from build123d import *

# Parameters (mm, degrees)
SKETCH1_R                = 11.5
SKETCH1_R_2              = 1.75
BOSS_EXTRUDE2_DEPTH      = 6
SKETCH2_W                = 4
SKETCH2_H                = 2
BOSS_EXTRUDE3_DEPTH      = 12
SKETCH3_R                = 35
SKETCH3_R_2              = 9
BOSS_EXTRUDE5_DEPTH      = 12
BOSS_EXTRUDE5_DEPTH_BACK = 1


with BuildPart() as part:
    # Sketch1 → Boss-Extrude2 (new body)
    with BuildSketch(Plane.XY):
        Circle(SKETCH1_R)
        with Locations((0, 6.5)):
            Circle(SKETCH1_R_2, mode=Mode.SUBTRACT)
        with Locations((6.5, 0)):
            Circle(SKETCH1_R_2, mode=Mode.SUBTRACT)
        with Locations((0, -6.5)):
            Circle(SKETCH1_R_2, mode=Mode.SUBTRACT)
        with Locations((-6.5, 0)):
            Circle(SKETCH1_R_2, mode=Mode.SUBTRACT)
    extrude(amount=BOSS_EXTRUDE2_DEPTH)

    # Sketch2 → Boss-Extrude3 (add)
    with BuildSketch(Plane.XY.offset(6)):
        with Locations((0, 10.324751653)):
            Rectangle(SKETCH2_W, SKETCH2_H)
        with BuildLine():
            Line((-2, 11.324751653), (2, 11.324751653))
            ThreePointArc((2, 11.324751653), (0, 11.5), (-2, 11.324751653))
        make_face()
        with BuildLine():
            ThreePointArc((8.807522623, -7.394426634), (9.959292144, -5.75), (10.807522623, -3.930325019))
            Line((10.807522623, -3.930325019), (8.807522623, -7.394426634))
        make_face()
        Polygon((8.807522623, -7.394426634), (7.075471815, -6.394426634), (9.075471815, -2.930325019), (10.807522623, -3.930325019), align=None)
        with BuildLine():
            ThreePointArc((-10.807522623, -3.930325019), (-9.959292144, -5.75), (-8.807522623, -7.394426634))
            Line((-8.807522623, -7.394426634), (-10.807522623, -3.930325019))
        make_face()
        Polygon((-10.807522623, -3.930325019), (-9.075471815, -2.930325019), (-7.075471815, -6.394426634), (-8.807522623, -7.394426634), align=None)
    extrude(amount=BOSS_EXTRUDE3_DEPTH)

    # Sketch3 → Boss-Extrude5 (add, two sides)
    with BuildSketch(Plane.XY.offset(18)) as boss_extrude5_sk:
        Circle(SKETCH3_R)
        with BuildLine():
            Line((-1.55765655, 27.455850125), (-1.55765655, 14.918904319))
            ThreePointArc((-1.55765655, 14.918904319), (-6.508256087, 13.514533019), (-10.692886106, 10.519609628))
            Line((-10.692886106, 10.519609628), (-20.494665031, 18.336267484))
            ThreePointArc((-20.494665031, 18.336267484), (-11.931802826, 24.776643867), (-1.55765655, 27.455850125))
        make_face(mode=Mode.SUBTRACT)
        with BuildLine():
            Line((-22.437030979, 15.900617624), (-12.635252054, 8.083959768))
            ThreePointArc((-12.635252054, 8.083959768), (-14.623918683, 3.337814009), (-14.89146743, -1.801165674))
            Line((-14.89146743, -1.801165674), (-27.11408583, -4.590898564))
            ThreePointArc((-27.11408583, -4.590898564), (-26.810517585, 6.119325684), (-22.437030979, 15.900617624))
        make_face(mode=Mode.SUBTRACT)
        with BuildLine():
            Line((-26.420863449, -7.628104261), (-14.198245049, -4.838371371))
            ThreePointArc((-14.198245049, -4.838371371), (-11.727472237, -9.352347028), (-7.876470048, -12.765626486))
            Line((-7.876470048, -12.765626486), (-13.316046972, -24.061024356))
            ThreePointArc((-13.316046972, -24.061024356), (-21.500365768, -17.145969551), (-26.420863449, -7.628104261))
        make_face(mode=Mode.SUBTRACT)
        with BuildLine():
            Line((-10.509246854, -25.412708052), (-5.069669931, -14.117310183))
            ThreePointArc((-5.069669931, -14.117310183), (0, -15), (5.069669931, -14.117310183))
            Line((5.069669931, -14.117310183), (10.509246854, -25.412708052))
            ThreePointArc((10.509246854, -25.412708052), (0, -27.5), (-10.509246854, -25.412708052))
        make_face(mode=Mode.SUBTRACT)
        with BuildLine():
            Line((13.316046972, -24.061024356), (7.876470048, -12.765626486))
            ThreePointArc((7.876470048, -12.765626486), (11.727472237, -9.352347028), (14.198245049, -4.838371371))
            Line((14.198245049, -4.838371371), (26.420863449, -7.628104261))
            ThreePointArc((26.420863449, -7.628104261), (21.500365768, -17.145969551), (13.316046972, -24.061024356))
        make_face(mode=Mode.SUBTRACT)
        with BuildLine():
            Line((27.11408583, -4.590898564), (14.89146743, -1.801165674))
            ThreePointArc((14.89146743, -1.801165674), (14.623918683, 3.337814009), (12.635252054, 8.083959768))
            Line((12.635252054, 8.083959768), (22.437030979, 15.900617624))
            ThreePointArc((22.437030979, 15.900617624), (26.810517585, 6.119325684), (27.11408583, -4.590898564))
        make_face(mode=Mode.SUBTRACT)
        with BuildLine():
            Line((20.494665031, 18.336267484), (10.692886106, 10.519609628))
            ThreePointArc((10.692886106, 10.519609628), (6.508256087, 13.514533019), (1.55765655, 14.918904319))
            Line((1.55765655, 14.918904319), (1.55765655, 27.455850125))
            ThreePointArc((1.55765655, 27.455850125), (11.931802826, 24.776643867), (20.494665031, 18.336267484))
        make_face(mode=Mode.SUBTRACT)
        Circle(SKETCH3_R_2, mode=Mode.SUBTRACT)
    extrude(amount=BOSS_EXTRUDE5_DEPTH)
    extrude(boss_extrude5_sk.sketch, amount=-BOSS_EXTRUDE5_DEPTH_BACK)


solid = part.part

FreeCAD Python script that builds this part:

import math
import FreeCAD as App
import Part
import Sketcher

V = App.Vector
Q = App.Units.Quantity

doc = App.newDocument("Part")
body = doc.addObject("PartDesign::Body", "Body")

sketch1 = doc.addObject("Sketcher::SketchObject", "Sketch")
body.addObject(sketch1)
sketch1.AttachmentSupport = (doc.XY_Plane, [""])
sketch1.MapMode = "FlatFace"
sketch1.addGeometry([
    Part.Circle(V(0, 0, 0), V(0, 0, 1), 11.5),
    Part.Circle(V(0, -6.5, 0), V(0, 0, 1), 1.8),
    Part.Circle(V(-6.5, 0, 0), V(0, 0, 1), 1.8),
    Part.Circle(V(6.5, 0, 0), V(0, 0, 1), 1.8),
    Part.Circle(V(0, 6.5, 0), V(0, 0, 1), 1.8),
], False)
sketch1.addConstraint([
    Sketcher.Constraint("Coincident", 0, 3, -1, 1),
    Sketcher.Constraint("Equal", 1, 2),
    Sketcher.Constraint("Equal", 2, 3),
    Sketcher.Constraint("Equal", 3, 4),
    Sketcher.Constraint("Symmetric", 2, 3, 3, 3, -1, 1),
    Sketcher.Constraint("Symmetric", 1, 3, 4, 3, -1, 1),
    Sketcher.Constraint("PointOnObject", 1, 3, -2),
    Sketcher.Constraint("PointOnObject", 2, 3, -1),
    Sketcher.Constraint("Diameter", 0, 23.0),
    Sketcher.Constraint("Diameter", 1, 3.5),
    Sketcher.Constraint("DistanceX", 2, 3, 3, 3, 13.0),
    Sketcher.Constraint("DistanceY", 1, 3, 4, 3, 13.0),
])
pad1 = doc.addObject("PartDesign::Pad", "Pad")
body.addObject(pad1)
pad1.Profile = sketch1
pad1.Length = 6

sketch2 = doc.addObject("Sketcher::SketchObject", "Sketch001")
body.addObject(sketch2)
sketch2.AttachmentSupport = (doc.XY_Plane, [""])
sketch2.MapMode = "FlatFace"
sketch2.AttachmentOffset = App.Placement(V(0, 0, 6), App.Rotation())
sketch2.addGeometry([
    Part.LineSegment(V(-2, 11.3, 0), V(-2, 9.3, 0)),
    Part.LineSegment(V(-2, 9.3, 0), V(2, 9.3, 0)),
    Part.LineSegment(V(2, 9.3, 0), V(2, 11.3, 0)),
    Part.ArcOfCircle(Part.Circle(V(0, 0, 0), V(0, 0, 1), 11.5), math.radians(80), math.radians(100)),
    Part.ArcOfCircle(Part.Circle(V(0, 0, 0), V(0, 0, 1), 11.5), math.radians(-40), math.radians(-20)),
    Part.LineSegment(V(10.8, -3.9, 0), V(9.1, -2.9, 0)),
    Part.LineSegment(V(9.1, -2.9, 0), V(7.1, -6.4, 0)),
    Part.LineSegment(V(7.1, -6.4, 0), V(8.8, -7.4, 0)),
    Part.ArcOfCircle(Part.Circle(V(0, 0, 0), V(0, 0, 1), 11.5), math.radians(-160), math.radians(-140)),
    Part.LineSegment(V(-8.8, -7.4, 0), V(-7.1, -6.4, 0)),
    Part.LineSegment(V(-7.1, -6.4, 0), V(-9.1, -2.9, 0)),
    Part.LineSegment(V(-9.1, -2.9, 0), V(-10.8, -3.9, 0)),
], False)
sketch2.addConstraint([
    Sketcher.Constraint("Coincident", 0, 2, 1, 1),
    Sketcher.Constraint("Coincident", 1, 2, 2, 1),
    Sketcher.Constraint("Coincident", 2, 2, 3, 1),
    Sketcher.Constraint("Coincident", 3, 2, 0, 1),
    Sketcher.Constraint("Coincident", 4, 2, 5, 1),
    Sketcher.Constraint("Coincident", 5, 2, 6, 1),
    Sketcher.Constraint("Coincident", 6, 2, 7, 1),
    Sketcher.Constraint("Coincident", 7, 2, 4, 1),
    Sketcher.Constraint("Coincident", 8, 2, 9, 1),
    Sketcher.Constraint("Coincident", 9, 2, 10, 1),
    Sketcher.Constraint("Coincident", 10, 2, 11, 1),
    Sketcher.Constraint("Coincident", 11, 2, 8, 1),
    Sketcher.Constraint("Vertical", 0),
    Sketcher.Constraint("Horizontal", 1),
    Sketcher.Constraint("Vertical", 2),
    Sketcher.Constraint("Coincident", 3, 3, -1, 1),
    Sketcher.Constraint("Coincident", 4, 3, -1, 1),
    Sketcher.Constraint("Coincident", 8, 3, -1, 1),
    Sketcher.Constraint("Equal", 3, 4),
    Sketcher.Constraint("Equal", 4, 8),
    Sketcher.Constraint("Symmetric", 6, 2, 9, 2, -2),
    Sketcher.Constraint("Symmetric", 5, 2, 10, 2, -2),
    Sketcher.Constraint("Perpendicular", 5, 6),
    Sketcher.Constraint("Perpendicular", 6, 7),
    Sketcher.Constraint("Perpendicular", 9, 10),
    Sketcher.Constraint("Perpendicular", 10, 11),
    Sketcher.Constraint("Horizontal", 2, 2, 3, 2),
    Sketcher.Constraint("Equal", 5, 7),
    Sketcher.Constraint("Radius", 3, 11.5),
    Sketcher.Constraint("DistanceX", 1, 1, 1, 2, 4.0),
    Sketcher.Constraint("DistanceY", 0, 2, 0, 1, 2.0),
    Sketcher.Constraint("Angle", 5, Q("150 deg")),
    Sketcher.Constraint("Distance", 5, 2.0),
    Sketcher.Constraint("Distance", 6, 4.0),
])
pad2 = doc.addObject("PartDesign::Pad", "Pad001")
body.addObject(pad2)
pad2.Profile = sketch2
pad2.Length = 12

sketch3 = doc.addObject("Sketcher::SketchObject", "Sketch002")
body.addObject(sketch3)
sketch3.AttachmentSupport = (doc.XY_Plane, [""])
sketch3.MapMode = "FlatFace"
sketch3.AttachmentOffset = App.Placement(V(0, 0, 18), App.Rotation())
sketch3.addGeometry([
    Part.Circle(V(0, 0, 0), V(0, 0, 1), 35),
    Part.ArcOfCircle(Part.Circle(V(0, 0, 0), V(0, 0, 1), 28), math.radians(-164), math.radians(-119)),
    Part.LineSegment(V(-26, -8, 0), V(-14, -5, 0)),
    Part.ArcOfCircle(Part.Circle(V(0, 0, 0), V(0, 0, 1), 15), math.radians(-161), math.radians(-122)),
    Part.LineSegment(V(-8, -13, 0), V(-13, -24, 0)),
    Part.ArcOfCircle(Part.Circle(V(0, 0, 0), V(0, 0, 1), 27), math.radians(-112), math.radians(-68)),
    Part.LineSegment(V(-11, -25, 0), V(-5, -14, 0)),
    Part.ArcOfCircle(Part.Circle(V(0, 0, 0), V(0, 0, 1), 15), math.radians(-110), math.radians(-70)),
    Part.LineSegment(V(5, -14, 0), V(11, -25, 0)),
    Part.ArcOfCircle(Part.Circle(V(0, 0, 0), V(0, 0, 1), 28), math.radians(-61), math.radians(-16)),
    Part.LineSegment(V(13, -24, 0), V(8, -13, 0)),
    Part.ArcOfCircle(Part.Circle(V(0, 0, 0), V(0, 0, 1), 15), math.radians(-58), math.radians(-19)),
    Part.LineSegment(V(14, -5, 0), V(26, -8, 0)),
    Part.ArcOfCircle(Part.Circle(V(0, 0, 0), V(0, 0, 1), 27), math.radians(145), math.radians(190)),
    Part.LineSegment(V(-22, 16, 0), V(-13, 8, 0)),
    Part.ArcOfCircle(Part.Circle(V(0, 0, 0), V(0, 0, 1), 15), math.radians(147), math.radians(187)),
    Part.LineSegment(V(-15, -2, 0), V(-27, -5, 0)),
    Part.Circle(V(0, 0, 0), V(0, 0, 1), 9),
    Part.ArcOfCircle(Part.Circle(V(0, 0, 0), V(0, 0, 1), 28), math.radians(93), math.radians(138)),
    Part.LineSegment(V(-2, 27, 0), V(-2, 15, 0)),
    Part.ArcOfCircle(Part.Circle(V(0, 0, 0), V(0, 0, 1), 15), math.radians(96), math.radians(135)),
    Part.LineSegment(V(-11, 11, 0), V(-20, 18, 0)),
    Part.ArcOfCircle(Part.Circle(V(0, 0, 0), V(0, 0, 1), 27), math.radians(-10), math.radians(35)),
    Part.LineSegment(V(27, -5, 0), V(15, -2, 0)),
    Part.ArcOfCircle(Part.Circle(V(0, 0, 0), V(0, 0, 1), 15), math.radians(-7), math.radians(33)),
    Part.LineSegment(V(13, 8, 0), V(22, 16, 0)),
    Part.ArcOfCircle(Part.Circle(V(0, 0, 0), V(0, 0, 1), 28), math.radians(42), math.radians(87)),
    Part.LineSegment(V(20, 18, 0), V(11, 11, 0)),
    Part.ArcOfCircle(Part.Circle(V(0, 0, 0), V(0, 0, 1), 15), math.radians(45), math.radians(84)),
    Part.LineSegment(V(2, 15, 0), V(2, 27, 0)),
], False)
sketch3.addConstraint([
    Sketcher.Constraint("Coincident", 1, 1, 2, 1),
    Sketcher.Constraint("Coincident", 2, 2, 3, 1),
    Sketcher.Constraint("Coincident", 3, 2, 4, 1),
    Sketcher.Constraint("Coincident", 4, 2, 1, 2),
    Sketcher.Constraint("Coincident", 5, 1, 6, 1),
    Sketcher.Constraint("Coincident", 6, 2, 7, 1),
    Sketcher.Constraint("Coincident", 7, 2, 8, 1),
    Sketcher.Constraint("Coincident", 8, 2, 5, 2),
    Sketcher.Constraint("Coincident", 9, 1, 10, 1),
    Sketcher.Constraint("Coincident", 10, 2, 11, 1),
    Sketcher.Constraint("Coincident", 11, 2, 12, 1),
    Sketcher.Constraint("Coincident", 12, 2, 9, 2),
    Sketcher.Constraint("Coincident", 13, 1, 14, 1),
    Sketcher.Constraint("Coincident", 14, 2, 15, 1),
    Sketcher.Constraint("Coincident", 15, 2, 16, 1),
    Sketcher.Constraint("Coincident", 16, 2, 13, 2),
    Sketcher.Constraint("Coincident", 18, 1, 19, 1),
    Sketcher.Constraint("Coincident", 19, 2, 20, 1),
    Sketcher.Constraint("Coincident", 20, 2, 21, 1),
    Sketcher.Constraint("Coincident", 21, 2, 18, 2),
    Sketcher.Constraint("Coincident", 22, 1, 23, 1),
    Sketcher.Constraint("Coincident", 23, 2, 24, 1),
    Sketcher.Constraint("Coincident", 24, 2, 25, 1),
    Sketcher.Constraint("Coincident", 25, 2, 22, 2),
    Sketcher.Constraint("Coincident", 26, 1, 27, 1),
    Sketcher.Constraint("Coincident", 27, 2, 28, 1),
    Sketcher.Constraint("Coincident", 28, 2, 29, 1),
    Sketcher.Constraint("Coincident", 29, 2, 26, 2),
    Sketcher.Constraint("Vertical", 19),
    Sketcher.Constraint("Vertical", 29),
    Sketcher.Constraint("Coincident", 0, 3, -1, 1),
    Sketcher.Constraint("Coincident", 1, 3, -1, 1),
    Sketcher.Constraint("Coincident", 3, 3, -1, 1),
    Sketcher.Constraint("Coincident", 5, 3, -1, 1),
    Sketcher.Constraint("Coincident", 7, 3, -1, 1),
    Sketcher.Constraint("Coincident", 9, 3, -1, 1),
    Sketcher.Constraint("Coincident", 11, 3, -1, 1),
    Sketcher.Constraint("Coincident", 13, 3, -1, 1),
    Sketcher.Constraint("Coincident", 15, 3, -1, 1),
    Sketcher.Constraint("Coincident", 17, 3, -1, 1),
    Sketcher.Constraint("Coincident", 18, 3, -1, 1),
    Sketcher.Constraint("Coincident", 20, 3, -1, 1),
    Sketcher.Constraint("Coincident", 22, 3, -1, 1),
    Sketcher.Constraint("Coincident", 24, 3, -1, 1),
    Sketcher.Constraint("Coincident", 26, 3, -1, 1),
    Sketcher.Constraint("Coincident", 28, 3, -1, 1),
    Sketcher.Constraint("Equal", 1, 5),
    Sketcher.Constraint("Equal", 3, 7),
    Sketcher.Constraint("Equal", 5, 9),
    Sketcher.Constraint("Equal", 7, 11),
    Sketcher.Constraint("Equal", 9, 13),
    Sketcher.Constraint("Equal", 11, 15),
    Sketcher.Constraint("Equal", 13, 18),
    Sketcher.Constraint("Equal", 15, 20),
    Sketcher.Constraint("Equal", 18, 22),
    Sketcher.Constraint("Equal", 20, 24),
    Sketcher.Constraint("Equal", 22, 26),
    Sketcher.Constraint("Equal", 24, 28),
    Sketcher.Constraint("Parallel", 4, 6),
    Sketcher.Constraint("Parallel", 8, 10),
    Sketcher.Constraint("Parallel", 2, 16),
    Sketcher.Constraint("Parallel", 14, 21),
    Sketcher.Constraint("Parallel", 12, 23),
    Sketcher.Constraint("Parallel", 25, 27),
    Sketcher.Constraint("Horizontal", 6, 2, 7, 2),
    Sketcher.Constraint("Horizontal", 5, 1, 8, 2),
    Sketcher.Constraint("Horizontal", 4, 2, 9, 1),
    Sketcher.Constraint("Horizontal", 2, 2, 11, 2),
    Sketcher.Constraint("Horizontal", 1, 1, 12, 2),
    Sketcher.Constraint("Horizontal", 16, 2, 22, 1),
    Sketcher.Constraint("Horizontal", 14, 2, 24, 2),
    Sketcher.Constraint("Horizontal", 13, 1, 25, 2),
    Sketcher.Constraint("Horizontal", 21, 2, 26, 1),
    Sketcher.Constraint("Horizontal", 19, 2, 28, 2),
    Sketcher.Constraint("Equal", 2, 4),
    Sketcher.Constraint("Equal", 4, 6),
    Sketcher.Constraint("Equal", 12, 14),
    Sketcher.Constraint("Equal", 14, 16),
    Sketcher.Constraint("Equal", 16, 21),
    Sketcher.Constraint("Diameter", 0, 70.0),
    Sketcher.Constraint("Diameter", 17, 18.0),
    Sketcher.Constraint("Radius", 3, 15.0),
    Sketcher.Constraint("Radius", 1, 27.5),
    Sketcher.Constraint("DistanceX", 2, 2, 5, 1, 3.688998),
    Sketcher.Constraint("DistanceY", 16, 2, -1, 1, 4.590899),
    Sketcher.Constraint("DistanceX", 2, 2, 4, 2, 0.882198),
    Sketcher.Constraint("DistanceY", 19, 2, 19, 1, 12.536946),
    Sketcher.Constraint("DistanceX", 13, 1, -1, 1, 22.437031),
])
pad3 = doc.addObject("PartDesign::Pad", "Pad002")
body.addObject(pad3)
pad3.Profile = sketch3
pad3.Type = "TwoLengths"
pad3.Length = 12
pad3.Length2 = 1

doc.recompute()
